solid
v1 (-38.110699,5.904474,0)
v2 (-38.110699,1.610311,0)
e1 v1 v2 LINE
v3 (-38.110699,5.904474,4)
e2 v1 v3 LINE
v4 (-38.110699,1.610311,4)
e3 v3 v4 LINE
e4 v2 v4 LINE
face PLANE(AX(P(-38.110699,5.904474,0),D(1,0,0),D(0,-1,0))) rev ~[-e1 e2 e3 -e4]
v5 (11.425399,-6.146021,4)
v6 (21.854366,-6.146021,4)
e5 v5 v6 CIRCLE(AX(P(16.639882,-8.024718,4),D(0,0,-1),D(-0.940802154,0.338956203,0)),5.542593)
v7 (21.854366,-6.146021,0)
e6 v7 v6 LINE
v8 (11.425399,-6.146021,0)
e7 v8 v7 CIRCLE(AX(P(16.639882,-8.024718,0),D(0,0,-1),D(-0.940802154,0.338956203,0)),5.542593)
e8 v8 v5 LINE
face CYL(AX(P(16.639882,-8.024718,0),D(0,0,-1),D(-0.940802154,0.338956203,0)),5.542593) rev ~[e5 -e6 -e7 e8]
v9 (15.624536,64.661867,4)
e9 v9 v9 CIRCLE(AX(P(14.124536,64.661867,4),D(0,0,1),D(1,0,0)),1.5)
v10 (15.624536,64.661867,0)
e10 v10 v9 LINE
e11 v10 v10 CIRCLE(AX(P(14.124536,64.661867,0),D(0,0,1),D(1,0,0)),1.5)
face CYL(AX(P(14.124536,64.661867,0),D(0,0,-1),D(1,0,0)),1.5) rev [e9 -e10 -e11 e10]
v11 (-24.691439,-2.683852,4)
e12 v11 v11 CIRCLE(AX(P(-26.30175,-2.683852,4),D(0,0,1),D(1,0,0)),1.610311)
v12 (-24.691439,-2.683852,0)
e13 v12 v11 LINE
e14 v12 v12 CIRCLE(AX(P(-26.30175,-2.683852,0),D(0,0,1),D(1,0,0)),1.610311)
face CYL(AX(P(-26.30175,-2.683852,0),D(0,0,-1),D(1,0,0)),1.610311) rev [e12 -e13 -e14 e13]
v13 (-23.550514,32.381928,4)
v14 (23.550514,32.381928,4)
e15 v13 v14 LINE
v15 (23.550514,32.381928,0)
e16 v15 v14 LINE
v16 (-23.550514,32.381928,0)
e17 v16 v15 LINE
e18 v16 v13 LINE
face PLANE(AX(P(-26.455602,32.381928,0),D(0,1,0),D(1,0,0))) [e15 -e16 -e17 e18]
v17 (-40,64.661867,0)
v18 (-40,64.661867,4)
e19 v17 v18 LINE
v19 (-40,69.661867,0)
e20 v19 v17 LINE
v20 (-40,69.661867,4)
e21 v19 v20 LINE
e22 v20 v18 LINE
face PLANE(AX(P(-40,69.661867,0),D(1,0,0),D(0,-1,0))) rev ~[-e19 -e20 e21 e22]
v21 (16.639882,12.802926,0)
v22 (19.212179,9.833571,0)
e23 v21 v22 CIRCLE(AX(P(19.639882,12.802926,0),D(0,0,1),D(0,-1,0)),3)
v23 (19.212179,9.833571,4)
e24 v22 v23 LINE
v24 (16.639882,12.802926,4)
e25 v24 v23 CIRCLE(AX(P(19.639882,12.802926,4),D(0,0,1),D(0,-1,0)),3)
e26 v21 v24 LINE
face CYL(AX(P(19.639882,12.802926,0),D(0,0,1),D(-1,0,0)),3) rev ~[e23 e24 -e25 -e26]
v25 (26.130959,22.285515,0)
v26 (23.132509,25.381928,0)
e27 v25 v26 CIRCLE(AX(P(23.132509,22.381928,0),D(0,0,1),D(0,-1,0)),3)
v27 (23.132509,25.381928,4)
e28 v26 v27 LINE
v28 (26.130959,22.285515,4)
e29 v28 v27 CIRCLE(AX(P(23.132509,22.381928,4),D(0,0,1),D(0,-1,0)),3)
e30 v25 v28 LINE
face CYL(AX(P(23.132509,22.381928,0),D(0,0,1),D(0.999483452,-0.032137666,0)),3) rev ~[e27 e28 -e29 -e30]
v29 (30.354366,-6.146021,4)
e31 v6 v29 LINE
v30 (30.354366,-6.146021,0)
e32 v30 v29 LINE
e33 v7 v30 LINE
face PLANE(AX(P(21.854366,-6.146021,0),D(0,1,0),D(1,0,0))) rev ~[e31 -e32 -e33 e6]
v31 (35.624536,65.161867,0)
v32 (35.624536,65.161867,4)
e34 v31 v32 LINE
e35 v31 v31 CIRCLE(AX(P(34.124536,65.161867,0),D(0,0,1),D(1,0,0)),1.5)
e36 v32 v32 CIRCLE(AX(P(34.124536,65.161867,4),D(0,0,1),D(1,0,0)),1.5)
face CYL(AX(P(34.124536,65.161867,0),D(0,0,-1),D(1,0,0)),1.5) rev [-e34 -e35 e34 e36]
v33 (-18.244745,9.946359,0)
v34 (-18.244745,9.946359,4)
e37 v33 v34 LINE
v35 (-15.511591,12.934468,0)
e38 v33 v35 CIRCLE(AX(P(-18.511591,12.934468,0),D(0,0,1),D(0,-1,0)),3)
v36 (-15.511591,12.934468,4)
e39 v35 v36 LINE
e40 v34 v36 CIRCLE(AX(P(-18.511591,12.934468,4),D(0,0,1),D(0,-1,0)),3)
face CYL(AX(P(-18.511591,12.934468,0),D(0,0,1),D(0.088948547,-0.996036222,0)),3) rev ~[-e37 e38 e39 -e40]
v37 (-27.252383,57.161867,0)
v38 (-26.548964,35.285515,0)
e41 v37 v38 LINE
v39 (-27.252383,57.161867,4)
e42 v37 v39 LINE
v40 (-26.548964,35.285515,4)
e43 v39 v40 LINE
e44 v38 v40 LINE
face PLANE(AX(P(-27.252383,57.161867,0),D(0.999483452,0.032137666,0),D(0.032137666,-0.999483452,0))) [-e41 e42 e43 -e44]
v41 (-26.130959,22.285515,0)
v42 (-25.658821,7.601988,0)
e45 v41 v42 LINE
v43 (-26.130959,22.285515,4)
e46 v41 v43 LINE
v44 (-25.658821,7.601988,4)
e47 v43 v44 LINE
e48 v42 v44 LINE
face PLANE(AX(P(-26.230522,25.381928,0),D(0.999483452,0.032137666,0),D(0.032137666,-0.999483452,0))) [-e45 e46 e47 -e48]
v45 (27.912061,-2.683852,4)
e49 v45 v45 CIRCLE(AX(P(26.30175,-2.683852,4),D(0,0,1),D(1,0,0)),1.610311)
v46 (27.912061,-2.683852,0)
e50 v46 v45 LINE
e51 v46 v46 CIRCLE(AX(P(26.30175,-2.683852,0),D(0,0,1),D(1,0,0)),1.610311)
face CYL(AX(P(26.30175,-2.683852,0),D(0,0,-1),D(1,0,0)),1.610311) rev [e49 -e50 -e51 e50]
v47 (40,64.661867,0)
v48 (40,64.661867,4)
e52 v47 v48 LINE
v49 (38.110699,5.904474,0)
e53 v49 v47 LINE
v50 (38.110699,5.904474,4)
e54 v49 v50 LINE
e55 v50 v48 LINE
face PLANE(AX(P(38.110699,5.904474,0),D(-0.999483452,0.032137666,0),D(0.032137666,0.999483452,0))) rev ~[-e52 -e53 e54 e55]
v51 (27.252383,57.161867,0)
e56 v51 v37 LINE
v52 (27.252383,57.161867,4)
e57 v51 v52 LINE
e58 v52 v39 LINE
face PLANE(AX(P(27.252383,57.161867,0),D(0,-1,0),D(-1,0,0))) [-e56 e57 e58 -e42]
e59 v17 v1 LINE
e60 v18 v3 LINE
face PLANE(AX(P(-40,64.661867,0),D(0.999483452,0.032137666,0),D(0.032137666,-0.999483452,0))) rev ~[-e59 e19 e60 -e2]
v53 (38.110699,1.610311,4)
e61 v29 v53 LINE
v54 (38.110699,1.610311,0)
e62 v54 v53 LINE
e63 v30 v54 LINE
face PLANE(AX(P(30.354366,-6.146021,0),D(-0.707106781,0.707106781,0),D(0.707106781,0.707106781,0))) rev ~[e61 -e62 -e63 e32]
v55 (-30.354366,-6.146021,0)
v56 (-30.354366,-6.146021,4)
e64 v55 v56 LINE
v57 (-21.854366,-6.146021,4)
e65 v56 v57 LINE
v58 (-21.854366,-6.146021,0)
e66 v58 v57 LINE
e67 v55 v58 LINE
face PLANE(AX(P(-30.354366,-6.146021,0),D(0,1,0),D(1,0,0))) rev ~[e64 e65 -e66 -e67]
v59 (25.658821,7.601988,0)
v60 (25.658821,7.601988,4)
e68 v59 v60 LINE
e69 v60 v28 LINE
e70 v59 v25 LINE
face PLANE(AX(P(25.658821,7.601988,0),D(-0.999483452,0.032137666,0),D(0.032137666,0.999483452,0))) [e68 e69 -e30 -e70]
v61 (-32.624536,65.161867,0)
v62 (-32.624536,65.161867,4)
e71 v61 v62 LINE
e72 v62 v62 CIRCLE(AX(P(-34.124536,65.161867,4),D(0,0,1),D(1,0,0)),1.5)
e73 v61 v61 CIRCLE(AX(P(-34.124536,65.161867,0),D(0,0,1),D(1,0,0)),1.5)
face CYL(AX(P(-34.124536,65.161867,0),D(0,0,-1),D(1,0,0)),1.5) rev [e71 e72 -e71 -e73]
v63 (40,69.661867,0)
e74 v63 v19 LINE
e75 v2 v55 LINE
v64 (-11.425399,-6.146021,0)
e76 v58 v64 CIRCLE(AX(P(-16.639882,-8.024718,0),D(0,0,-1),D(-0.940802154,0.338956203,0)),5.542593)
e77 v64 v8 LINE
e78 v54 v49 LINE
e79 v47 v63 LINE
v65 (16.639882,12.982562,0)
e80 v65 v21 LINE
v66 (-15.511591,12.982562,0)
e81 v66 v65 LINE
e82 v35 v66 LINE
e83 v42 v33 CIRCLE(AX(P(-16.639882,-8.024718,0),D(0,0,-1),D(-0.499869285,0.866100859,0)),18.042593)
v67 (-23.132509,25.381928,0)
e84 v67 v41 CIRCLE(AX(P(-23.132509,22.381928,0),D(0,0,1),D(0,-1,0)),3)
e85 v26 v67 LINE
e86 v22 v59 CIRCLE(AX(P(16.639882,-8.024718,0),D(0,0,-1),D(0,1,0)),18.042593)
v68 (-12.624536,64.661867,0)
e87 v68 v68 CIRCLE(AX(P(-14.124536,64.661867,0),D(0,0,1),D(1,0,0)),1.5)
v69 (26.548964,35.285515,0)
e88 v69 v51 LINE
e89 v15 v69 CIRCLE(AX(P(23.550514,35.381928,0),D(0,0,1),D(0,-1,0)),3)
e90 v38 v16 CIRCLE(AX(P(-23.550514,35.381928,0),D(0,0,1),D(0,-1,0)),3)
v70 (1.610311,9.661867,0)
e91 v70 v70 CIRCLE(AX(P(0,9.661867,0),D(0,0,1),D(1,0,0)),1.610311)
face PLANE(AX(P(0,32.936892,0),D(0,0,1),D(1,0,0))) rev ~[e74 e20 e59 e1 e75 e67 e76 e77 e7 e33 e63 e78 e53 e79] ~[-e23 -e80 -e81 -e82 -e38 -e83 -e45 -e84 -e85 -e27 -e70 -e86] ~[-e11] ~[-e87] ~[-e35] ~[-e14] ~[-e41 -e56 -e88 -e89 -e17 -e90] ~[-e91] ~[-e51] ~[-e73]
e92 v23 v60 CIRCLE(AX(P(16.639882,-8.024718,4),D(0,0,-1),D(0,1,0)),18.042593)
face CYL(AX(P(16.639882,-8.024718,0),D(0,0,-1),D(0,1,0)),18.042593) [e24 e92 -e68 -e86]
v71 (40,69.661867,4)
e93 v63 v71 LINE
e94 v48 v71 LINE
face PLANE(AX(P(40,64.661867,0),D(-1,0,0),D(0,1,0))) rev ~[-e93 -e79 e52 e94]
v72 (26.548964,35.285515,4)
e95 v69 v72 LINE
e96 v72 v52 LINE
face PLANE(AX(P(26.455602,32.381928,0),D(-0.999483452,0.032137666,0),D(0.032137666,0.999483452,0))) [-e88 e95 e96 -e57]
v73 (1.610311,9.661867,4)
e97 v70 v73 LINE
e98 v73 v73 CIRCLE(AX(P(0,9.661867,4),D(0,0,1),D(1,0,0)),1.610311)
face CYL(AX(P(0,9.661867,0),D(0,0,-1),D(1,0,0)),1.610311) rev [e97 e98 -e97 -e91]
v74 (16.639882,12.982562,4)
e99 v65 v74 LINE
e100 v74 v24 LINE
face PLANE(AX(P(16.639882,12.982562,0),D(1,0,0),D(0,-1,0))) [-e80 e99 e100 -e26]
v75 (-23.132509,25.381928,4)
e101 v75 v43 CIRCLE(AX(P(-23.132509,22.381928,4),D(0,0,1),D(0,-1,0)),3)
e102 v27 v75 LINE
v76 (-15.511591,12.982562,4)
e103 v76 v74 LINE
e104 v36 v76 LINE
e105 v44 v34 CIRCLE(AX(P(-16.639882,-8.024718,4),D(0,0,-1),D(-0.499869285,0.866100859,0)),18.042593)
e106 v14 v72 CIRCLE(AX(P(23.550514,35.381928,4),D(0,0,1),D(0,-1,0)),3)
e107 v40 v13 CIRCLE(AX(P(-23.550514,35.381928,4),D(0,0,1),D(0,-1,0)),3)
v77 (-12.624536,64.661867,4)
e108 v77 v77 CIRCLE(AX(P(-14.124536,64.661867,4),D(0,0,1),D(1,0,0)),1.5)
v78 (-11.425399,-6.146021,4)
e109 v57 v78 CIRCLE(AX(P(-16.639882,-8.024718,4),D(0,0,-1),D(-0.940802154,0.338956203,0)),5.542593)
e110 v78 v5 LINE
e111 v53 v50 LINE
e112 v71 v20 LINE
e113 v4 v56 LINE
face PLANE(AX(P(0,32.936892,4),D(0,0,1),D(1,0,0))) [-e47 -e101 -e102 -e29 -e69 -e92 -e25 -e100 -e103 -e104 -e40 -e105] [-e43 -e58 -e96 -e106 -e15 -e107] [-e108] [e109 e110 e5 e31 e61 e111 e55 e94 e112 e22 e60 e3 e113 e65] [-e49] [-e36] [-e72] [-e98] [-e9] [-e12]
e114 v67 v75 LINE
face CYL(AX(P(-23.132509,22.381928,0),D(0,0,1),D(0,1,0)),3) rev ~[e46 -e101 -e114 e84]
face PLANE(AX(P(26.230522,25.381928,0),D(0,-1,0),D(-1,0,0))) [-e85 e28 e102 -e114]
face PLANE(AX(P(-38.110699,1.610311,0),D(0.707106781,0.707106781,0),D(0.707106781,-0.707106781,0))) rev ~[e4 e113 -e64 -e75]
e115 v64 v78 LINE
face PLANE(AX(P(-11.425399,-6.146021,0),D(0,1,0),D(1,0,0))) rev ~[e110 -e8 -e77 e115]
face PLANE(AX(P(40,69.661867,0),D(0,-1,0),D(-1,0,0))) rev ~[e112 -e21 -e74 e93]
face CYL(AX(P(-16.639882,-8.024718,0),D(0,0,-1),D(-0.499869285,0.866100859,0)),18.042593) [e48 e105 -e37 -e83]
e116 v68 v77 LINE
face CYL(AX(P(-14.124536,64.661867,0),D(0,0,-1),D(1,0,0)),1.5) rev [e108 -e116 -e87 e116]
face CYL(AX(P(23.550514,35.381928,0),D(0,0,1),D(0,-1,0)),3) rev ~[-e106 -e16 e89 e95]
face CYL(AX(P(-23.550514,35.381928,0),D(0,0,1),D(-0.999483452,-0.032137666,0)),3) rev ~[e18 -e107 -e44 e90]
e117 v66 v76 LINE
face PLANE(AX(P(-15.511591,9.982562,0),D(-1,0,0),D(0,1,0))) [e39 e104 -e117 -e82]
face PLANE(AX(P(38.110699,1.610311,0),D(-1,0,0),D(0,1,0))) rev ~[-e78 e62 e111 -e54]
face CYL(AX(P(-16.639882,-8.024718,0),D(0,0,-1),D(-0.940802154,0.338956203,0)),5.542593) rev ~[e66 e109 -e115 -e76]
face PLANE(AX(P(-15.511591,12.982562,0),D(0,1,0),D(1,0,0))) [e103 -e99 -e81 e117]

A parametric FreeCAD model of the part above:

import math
import FreeCAD as App
import Part
import Sketcher
from FreeCAD import Vector
Q = App.Units.Quantity


def edges_at(feature, points):
    """Names of the edges that pass closest to the given points."""
    edges = feature.Shape.Edges
    near = lambda p: min(range(len(edges)), key=lambda i: edges[i].distToShape(Part.Vertex(*p))[0])
    return sorted({f"Edge{near(p) + 1}" for p in points})

doc = App.newDocument("Part")
body = doc.addObject("PartDesign::Body", "Body")

sketch1 = body.newObject("Sketcher::SketchObject", "Sketch")
sketch1.AttachmentSupport = (doc.getObject("XY_Plane"), [""])
sketch1.MapMode = "FlatFace"
sketch1.addGeometry([
    Part.LineSegment(Vector(-38.1, 1.6, 0), Vector(-30.4, -6.1, 0)),
    Part.LineSegment(Vector(-30.4, -6.1, 0), Vector(-21.9, -6.1, 0)),
    Part.ArcOfCircle(Part.Circle(Vector(-16.6, -8, 0), Vector(0, 0, 1), 5.5), math.radians(20), math.radians(160)),
    Part.LineSegment(Vector(-11.4, -6.1, 0), Vector(11.4, -6.1, 0)),
    Part.ArcOfCircle(Part.Circle(Vector(16.6, -8, 0), Vector(0, 0, 1), 5.5), math.radians(20), math.radians(160)),
    Part.LineSegment(Vector(21.9, -6.1, 0), Vector(30.4, -6.1, 0)),
    Part.LineSegment(Vector(30.4, -6.1, 0), Vector(38.1, 1.6, 0)),
    Part.LineSegment(Vector(38.1, 1.6, 0), Vector(38.1, 5.9, 0)),
    Part.LineSegment(Vector(38.1, 5.9, 0), Vector(40, 64.7, 0)),
    Part.LineSegment(Vector(40, 64.7, 0), Vector(40, 69.7, 0)),
    Part.LineSegment(Vector(40, 69.7, 0), Vector(-40, 69.7, 0)),
    Part.LineSegment(Vector(-40, 69.7, 0), Vector(-40, 64.7, 0)),
    Part.LineSegment(Vector(-40, 64.7, 0), Vector(-38.1, 5.9, 0)),
    Part.LineSegment(Vector(-38.1, 5.9, 0), Vector(-38.1, 1.6, 0)),
    Part.Circle(Vector(-26.3, -2.7, 0), Vector(0, 0, 1), 1.6),
    Part.Circle(Vector(0, 9.7, 0), Vector(0, 0, 1), 1.6),
    Part.Circle(Vector(26.3, -2.7, 0), Vector(0, 0, 1), 1.6),
    Part.LineSegment(Vector(26.2, 25.4, 0), Vector(25.7, 7.6, 0)),
    Part.ArcOfCircle(Part.Circle(Vector(16.6, -8, 0), Vector(0, 0, 1), 18), math.radians(60), math.radians(90)),
    Part.LineSegment(Vector(16.6, 10, 0), Vector(16.6, 13, 0)),
    Part.LineSegment(Vector(16.6, 13, 0), Vector(-15.5, 13, 0)),
    Part.LineSegment(Vector(-15.5, 13, 0), Vector(-15.5, 10, 0)),
    Part.ArcOfCircle(Part.Circle(Vector(-16.6, -8, 0), Vector(0, 0, 1), 18), math.radians(86), math.radians(120)),
    Part.LineSegment(Vector(-25.7, 7.6, 0), Vector(-26.2, 25.4, 0)),
    Part.LineSegment(Vector(-26.2, 25.4, 0), Vector(26.2, 25.4, 0)),
    Part.Circle(Vector(-34.1, 65.2, 0), Vector(0, 0, 1), 1.5),
    Part.Circle(Vector(-14.1, 64.7, 0), Vector(0, 0, 1), 1.5),
    Part.LineSegment(Vector(-26.5, 32.4, 0), Vector(-27.3, 57.2, 0)),
    Part.LineSegment(Vector(-27.3, 57.2, 0), Vector(27.3, 57.2, 0)),
    Part.LineSegment(Vector(27.3, 57.2, 0), Vector(26.5, 32.4, 0)),
    Part.LineSegment(Vector(26.5, 32.4, 0), Vector(-26.5, 32.4, 0)),
    Part.Circle(Vector(14.1, 64.7, 0), Vector(0, 0, 1), 1.5),
    Part.Circle(Vector(34.1, 65.2, 0), Vector(0, 0, 1), 1.5),
], False)
sketch1.addConstraint([
    Sketcher.Constraint("Coincident", 0, 2, 1, 1),
    Sketcher.Constraint("Coincident", 1, 2, 2, 2),
    Sketcher.Constraint("Coincident", 2, 1, 3, 1),
    Sketcher.Constraint("Coincident", 3, 2, 4, 2),
    Sketcher.Constraint("Coincident", 4, 1, 5, 1),
    Sketcher.Constraint("Coincident", 5, 2, 6, 1),
    Sketcher.Constraint("Coincident", 6, 2, 7, 1),
    Sketcher.Constraint("Coincident", 7, 2, 8, 1),
    Sketcher.Constraint("Coincident", 8, 2, 9, 1),
    Sketcher.Constraint("Coincident", 9, 2, 10, 1),
    Sketcher.Constraint("Coincident", 10, 2, 11, 1),
    Sketcher.Constraint("Coincident", 11, 2, 12, 1),
    Sketcher.Constraint("Coincident", 12, 2, 13, 1),
    Sketcher.Constraint("Coincident", 13, 2, 0, 1),
    Sketcher.Constraint("Coincident", 17, 2, 18, 1),
    Sketcher.Constraint("Coincident", 18, 2, 19, 1),
    Sketcher.Constraint("Coincident", 19, 2, 20, 1),
    Sketcher.Constraint("Coincident", 20, 2, 21, 1),
    Sketcher.Constraint("Coincident", 21, 2, 22, 1),
    Sketcher.Constraint("Coincident", 22, 2, 23, 1),
    Sketcher.Constraint("Coincident", 23, 2, 24, 1),
    Sketcher.Constraint("Coincident", 24, 2, 17, 1),
    Sketcher.Constraint("Coincident", 27, 2, 28, 1),
    Sketcher.Constraint("Coincident", 28, 2, 29, 1),
    Sketcher.Constraint("Coincident", 29, 2, 30, 1),
    Sketcher.Constraint("Coincident", 30, 2, 27, 1),
    Sketcher.Constraint("Horizontal", 1),
    Sketcher.Constraint("Horizontal", 3),
    Sketcher.Constraint("Horizontal", 5),
    Sketcher.Constraint("Vertical", 7),
    Sketcher.Constraint("Vertical", 9),
    Sketcher.Constraint("Horizontal", 10),
    Sketcher.Constraint("Vertical", 11),
    Sketcher.Constraint("Vertical", 13),
    Sketcher.Constraint("Vertical", 19),
    Sketcher.Constraint("Horizontal", 20),
    Sketcher.Constraint("Vertical", 21),
    Sketcher.Constraint("Horizontal", 24),
    Sketcher.Constraint("Horizontal", 28),
    Sketcher.Constraint("Horizontal", 30),
    Sketcher.Constraint("Coincident", 18, 3, 4, 3),
    Sketcher.Constraint("Coincident", 22, 3, 2, 3),
    Sketcher.Constraint("Equal", 2, 4),
    Sketcher.Constraint("Equal", 14, 15),
    Sketcher.Constraint("Equal", 15, 16),
    Sketcher.Constraint("Equal", 18, 22),
    Sketcher.Constraint("Equal", 25, 26),
    Sketcher.Constraint("Equal", 26, 31),
    Sketcher.Constraint("Equal", 31, 32),
    Sketcher.Constraint("Symmetric", 2, 3, 4, 3, -2),
    Sketcher.Constraint("Symmetric", 14, 3, 16, 3, -2),
    Sketcher.Constraint("Symmetric", 26, 3, 31, 3, -2),
    Sketcher.Constraint("Symmetric", 25, 3, 32, 3, -2),
    Sketcher.Constraint("Symmetric", 0, 2, 5, 2, -2),
    Sketcher.Constraint("Symmetric", 8, 2, 11, 2, -2),
    Sketcher.Constraint("Symmetric", 7, 2, 12, 2, -2),
    Sketcher.Constraint("PointOnObject", 15, 3, -2),
    Sketcher.Constraint("Perpendicular", 0, 6),
    Sketcher.Constraint("Parallel", 8, 17),
    Sketcher.Constraint("Parallel", 12, 23),
    Sketcher.Constraint("Parallel", 23, 27),
    Sketcher.Constraint("Parallel", 17, 29),
    Sketcher.Constraint("Horizontal", 1, 2, 2, 1),
    Sketcher.Constraint("Horizontal", 31, 3, 8, 2),
    Sketcher.Constraint("Horizontal", 6, 2, 13, 2),
    Sketcher.Constraint("Horizontal", 17, 2, 22, 2),
    Sketcher.Constraint("Vertical", 4, 3, 18, 2),
    Sketcher.Constraint("Diameter", 25, Q("3 mm")),
    Sketcher.Constraint("DistanceX", 10, 2, 10, 1, Q("80 mm")),
    Sketcher.Constraint("DistanceY", 9, 1, 9, 2, Q("5 mm")),
    Sketcher.Constraint("DistanceY", 21, 2, 21, 1, Q("3 mm")),
    Sketcher.Constraint("DistanceX", 1, 1, 1, 2, Q("8.5 mm")),
    Sketcher.Constraint("DistanceX", 25, 3, 26, 3, Q("20 mm")),
    Sketcher.Constraint("DistanceY", 15, 3, 26, 3, Q("55 mm")),
    Sketcher.Constraint("DistanceY", 27, 2, 25, 3, Q("8 mm")),
    Sketcher.Constraint("DistanceY", 24, 2, 29, 2, Q("7 mm")),
    Sketcher.Constraint("DistanceY", 15, 3, 25, 3, Q("55.5 mm")),
    Sketcher.Constraint("Diameter", 14, Q("3.220622 mm")),
    Sketcher.Constraint("Radius", 2, Q("5.542593 mm")),
    Sketcher.Constraint("Radius", 18, Q("18.042593 mm")),
    Sketcher.Constraint("DistanceX", 2, 1, -1, 1, Q("11.425399 mm")),
    Sketcher.Constraint("DistanceX", -1, 1, 6, 2, Q("38.110699 mm")),
    Sketcher.Constraint("DistanceX", -1, 1, 29, 2, Q("26.455602 mm")),
    Sketcher.Constraint("DistanceX", 30, 2, -1, 1, Q("26.455602 mm")),
    Sketcher.Constraint("DistanceX", 14, 3, 16, 3, Q("52.603499 mm")),
    Sketcher.Constraint("DistanceX", 17, 2, 24, 2, Q("0.571701 mm")),
    Sketcher.Constraint("Distance", 0, Q("10.96911 mm")),
    Sketcher.Constraint("Distance", 8, Q("58.78776 mm")),
    Sketcher.Constraint("DistanceX", 20, 2, 20, 1, Q("32.151473 mm")),
    Sketcher.Constraint("DistanceX", 24, 1, 24, 2, Q("52.461044 mm")),
    Sketcher.Constraint("DistanceX", 28, 1, 28, 2, Q("54.504765 mm")),
    Sketcher.Constraint("DistanceY", 0, 2, -1, 1, Q("6.146021 mm")),
    Sketcher.Constraint("DistanceY", 14, 3, 15, 3, Q("12.345719 mm")),
    Sketcher.Constraint("DistanceX", 25, 3, 18, 3, Q("50.764418 mm")),
])
pad1 = body.newObject("PartDesign::Pad", "Pad")
pad1.Profile = sketch1
pad1.Length = 4
doc.recompute()

fillet = body.newObject("PartDesign::Fillet", "Fillet")
fillet.Base = (pad1, edges_at(pad1, [
    (-26.456, 32.382, 2),
    (26.456, 32.382, 2),
    (-26.231, 25.382, 2),
    (-15.512, 9.983, 2),
    (16.64, 10.018, 2),
    (26.231, 25.382, 2),
]))
fillet.Radius = 3

doc.recompute()
